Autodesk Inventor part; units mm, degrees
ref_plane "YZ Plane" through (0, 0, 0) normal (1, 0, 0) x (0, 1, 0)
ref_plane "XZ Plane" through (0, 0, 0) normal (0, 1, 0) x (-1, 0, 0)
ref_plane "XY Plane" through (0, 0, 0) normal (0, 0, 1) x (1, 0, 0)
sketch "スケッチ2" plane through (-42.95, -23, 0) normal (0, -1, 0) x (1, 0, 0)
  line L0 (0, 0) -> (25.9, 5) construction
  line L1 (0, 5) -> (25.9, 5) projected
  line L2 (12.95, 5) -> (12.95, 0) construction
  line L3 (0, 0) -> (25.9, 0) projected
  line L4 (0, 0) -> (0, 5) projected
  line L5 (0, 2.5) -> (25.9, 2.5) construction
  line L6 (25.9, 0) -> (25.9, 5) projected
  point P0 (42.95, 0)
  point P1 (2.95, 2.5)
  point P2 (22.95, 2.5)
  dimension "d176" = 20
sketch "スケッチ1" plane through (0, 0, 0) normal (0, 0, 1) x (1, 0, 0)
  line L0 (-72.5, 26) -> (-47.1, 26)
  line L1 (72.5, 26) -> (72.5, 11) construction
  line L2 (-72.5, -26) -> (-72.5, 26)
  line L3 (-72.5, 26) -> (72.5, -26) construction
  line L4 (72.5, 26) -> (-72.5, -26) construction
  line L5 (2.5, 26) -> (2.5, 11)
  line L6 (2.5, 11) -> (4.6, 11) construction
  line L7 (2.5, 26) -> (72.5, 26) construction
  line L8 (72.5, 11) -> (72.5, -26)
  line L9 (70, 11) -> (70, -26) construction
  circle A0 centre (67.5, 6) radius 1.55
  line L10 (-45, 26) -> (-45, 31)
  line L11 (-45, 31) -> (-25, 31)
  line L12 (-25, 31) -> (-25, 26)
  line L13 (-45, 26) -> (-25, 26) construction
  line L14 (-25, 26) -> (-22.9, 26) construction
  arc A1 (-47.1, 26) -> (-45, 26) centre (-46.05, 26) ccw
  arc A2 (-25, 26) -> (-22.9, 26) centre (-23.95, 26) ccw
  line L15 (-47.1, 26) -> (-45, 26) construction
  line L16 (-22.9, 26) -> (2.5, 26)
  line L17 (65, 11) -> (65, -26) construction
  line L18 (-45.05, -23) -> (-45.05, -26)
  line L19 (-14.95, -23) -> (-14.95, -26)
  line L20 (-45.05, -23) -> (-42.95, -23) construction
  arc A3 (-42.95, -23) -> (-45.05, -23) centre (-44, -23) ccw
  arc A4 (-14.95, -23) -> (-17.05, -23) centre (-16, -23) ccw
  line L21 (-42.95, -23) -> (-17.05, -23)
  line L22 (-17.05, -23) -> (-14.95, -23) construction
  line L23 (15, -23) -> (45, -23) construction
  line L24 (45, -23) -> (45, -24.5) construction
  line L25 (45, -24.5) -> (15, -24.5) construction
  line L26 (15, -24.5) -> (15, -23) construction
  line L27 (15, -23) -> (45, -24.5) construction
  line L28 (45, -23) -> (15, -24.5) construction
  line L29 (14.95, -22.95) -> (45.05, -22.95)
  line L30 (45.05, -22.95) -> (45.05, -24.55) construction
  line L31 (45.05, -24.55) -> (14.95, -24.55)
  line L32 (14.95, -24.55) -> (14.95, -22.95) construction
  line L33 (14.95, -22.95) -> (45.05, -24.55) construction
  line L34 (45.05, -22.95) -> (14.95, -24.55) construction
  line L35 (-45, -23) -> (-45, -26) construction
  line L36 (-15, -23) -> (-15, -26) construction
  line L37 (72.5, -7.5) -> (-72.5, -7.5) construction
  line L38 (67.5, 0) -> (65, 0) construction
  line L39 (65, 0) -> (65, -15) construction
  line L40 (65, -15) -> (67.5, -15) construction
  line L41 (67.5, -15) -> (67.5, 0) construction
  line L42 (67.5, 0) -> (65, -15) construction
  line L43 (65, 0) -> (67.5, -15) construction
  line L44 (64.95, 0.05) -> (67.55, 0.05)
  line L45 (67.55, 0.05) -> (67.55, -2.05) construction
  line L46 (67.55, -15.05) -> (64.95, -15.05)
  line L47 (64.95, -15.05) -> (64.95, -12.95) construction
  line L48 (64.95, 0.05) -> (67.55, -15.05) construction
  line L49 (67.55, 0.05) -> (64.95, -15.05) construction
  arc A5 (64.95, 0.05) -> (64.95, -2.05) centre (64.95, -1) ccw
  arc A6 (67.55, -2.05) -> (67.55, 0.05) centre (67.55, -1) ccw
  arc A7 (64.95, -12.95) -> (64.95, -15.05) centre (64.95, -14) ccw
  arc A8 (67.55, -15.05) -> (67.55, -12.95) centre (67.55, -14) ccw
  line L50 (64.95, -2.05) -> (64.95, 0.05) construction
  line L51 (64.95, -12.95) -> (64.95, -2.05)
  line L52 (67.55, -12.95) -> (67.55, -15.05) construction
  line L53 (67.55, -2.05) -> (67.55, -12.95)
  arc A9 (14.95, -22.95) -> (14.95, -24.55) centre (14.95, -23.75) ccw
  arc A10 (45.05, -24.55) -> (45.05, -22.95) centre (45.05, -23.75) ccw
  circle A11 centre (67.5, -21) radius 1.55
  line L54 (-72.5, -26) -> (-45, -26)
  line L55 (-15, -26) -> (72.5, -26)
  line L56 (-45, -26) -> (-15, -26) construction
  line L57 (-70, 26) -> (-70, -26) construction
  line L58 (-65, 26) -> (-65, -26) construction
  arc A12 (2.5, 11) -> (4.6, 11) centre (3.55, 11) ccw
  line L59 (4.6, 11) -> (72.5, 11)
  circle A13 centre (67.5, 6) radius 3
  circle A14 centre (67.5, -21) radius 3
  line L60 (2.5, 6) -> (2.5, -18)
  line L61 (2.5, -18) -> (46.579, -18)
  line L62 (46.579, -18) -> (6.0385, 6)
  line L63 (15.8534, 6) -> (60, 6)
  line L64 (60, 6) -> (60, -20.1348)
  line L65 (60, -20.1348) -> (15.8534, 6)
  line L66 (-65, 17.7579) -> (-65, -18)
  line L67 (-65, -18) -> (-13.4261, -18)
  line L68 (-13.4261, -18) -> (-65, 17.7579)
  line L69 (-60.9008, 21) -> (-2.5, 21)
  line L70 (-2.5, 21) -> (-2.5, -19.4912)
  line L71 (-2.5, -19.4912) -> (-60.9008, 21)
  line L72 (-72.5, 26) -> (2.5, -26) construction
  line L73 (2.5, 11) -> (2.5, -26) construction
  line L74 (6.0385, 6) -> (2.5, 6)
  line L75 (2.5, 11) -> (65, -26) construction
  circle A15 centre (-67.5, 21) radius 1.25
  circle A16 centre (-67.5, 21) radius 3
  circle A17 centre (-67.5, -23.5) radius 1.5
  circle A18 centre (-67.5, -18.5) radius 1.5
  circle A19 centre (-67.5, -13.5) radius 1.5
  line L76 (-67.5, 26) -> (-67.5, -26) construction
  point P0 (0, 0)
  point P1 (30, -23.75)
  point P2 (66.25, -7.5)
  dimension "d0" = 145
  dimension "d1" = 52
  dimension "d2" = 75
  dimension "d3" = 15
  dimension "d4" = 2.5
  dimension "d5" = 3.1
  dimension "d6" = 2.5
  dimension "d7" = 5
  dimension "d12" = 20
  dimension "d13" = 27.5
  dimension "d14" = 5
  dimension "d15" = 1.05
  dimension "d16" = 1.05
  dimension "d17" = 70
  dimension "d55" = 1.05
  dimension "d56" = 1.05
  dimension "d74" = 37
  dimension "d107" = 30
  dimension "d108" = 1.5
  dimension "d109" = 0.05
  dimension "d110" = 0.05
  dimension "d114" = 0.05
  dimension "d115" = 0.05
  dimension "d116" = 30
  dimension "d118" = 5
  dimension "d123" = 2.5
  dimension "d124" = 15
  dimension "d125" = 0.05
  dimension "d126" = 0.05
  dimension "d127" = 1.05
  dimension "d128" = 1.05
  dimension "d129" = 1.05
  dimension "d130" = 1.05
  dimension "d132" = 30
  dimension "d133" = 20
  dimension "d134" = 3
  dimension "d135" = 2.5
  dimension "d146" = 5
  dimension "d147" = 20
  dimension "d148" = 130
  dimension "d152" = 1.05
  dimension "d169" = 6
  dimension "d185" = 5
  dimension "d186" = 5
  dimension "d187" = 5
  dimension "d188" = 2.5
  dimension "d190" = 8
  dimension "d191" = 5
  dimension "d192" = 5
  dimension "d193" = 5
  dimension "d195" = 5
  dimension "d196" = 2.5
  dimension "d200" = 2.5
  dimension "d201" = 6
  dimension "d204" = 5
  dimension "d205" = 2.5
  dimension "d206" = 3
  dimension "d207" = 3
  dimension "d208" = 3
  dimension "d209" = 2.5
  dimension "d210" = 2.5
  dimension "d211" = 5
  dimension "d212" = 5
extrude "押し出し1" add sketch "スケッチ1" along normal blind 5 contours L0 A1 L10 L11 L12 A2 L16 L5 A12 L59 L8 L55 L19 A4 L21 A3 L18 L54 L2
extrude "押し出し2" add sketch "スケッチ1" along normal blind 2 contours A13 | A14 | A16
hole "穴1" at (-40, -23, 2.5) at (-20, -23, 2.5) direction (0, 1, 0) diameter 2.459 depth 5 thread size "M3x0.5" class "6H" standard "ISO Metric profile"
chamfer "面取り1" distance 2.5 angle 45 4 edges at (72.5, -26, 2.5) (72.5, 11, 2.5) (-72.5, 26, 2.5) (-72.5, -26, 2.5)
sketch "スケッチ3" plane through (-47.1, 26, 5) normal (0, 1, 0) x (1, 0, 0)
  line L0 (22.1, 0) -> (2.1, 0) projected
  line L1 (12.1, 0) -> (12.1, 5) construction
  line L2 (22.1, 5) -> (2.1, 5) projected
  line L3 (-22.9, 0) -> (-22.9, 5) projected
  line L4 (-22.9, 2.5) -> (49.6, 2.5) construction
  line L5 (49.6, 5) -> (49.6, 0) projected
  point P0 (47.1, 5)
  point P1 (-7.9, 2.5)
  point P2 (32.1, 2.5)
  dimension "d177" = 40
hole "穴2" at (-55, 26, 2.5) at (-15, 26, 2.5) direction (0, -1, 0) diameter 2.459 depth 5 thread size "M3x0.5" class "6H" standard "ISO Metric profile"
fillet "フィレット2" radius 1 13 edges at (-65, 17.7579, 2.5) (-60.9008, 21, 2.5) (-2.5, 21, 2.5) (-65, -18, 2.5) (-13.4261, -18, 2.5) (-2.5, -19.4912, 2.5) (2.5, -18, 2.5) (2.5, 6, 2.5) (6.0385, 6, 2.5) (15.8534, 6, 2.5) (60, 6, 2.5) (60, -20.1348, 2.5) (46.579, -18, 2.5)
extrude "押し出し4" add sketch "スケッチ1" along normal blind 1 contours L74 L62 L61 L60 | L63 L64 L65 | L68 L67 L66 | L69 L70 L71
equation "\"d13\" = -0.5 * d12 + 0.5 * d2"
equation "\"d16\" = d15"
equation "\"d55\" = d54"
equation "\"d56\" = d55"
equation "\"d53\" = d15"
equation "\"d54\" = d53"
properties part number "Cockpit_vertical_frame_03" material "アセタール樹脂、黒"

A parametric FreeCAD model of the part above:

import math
import FreeCAD as App
import Part
import Sketcher

V = App.Vector


def edges_at(feature, points):
    """Names of the edges that pass closest to the given points."""
    edges = feature.Shape.Edges
    near = lambda p: min(range(len(edges)), key=lambda i: edges[i].distToShape(Part.Vertex(*p))[0])
    return sorted({f"Edge{near(p) + 1}" for p in points})

doc = App.newDocument("Part")
params = doc.addObject("Spreadsheet::Sheet", "Params")
for row, (alias, value) in enumerate([
    ("sketch1_diameter", "3 mm"),
    ("sketch1_diameter2", "6 mm"),
    ("sketch1_width", "20 mm"),
    ("sketch1_height", "52 mm"),
    ("sketch1_height2", "3 mm"),
    ("pad1_length", "5 mm"),
    ("sketch2_diameter", "6 mm"),
    ("sketch2_diameter2", "3.1 mm"),
    ("sketch2_diameter3", "2.5 mm"),
    ("pad2_length", "2 mm"),
    ("hole_diameter", "2.459 mm"),
    ("hole_depth", "5 mm"),
    ("chamfer_size", "2.5 mm"),
    ("hole2_diameter", "2.459 mm"),
    ("hole2_depth", "5 mm"),
    ("fillet_radius", "1 mm"),
    ("sketch5_height", "24 mm"),
    ("pad3_length", "1 mm"),
], start=1):
    params.set(f"A{row}", alias)
    params.set(f"B{row}", "=" + value)
    params.setAlias(f"B{row}", alias)

body = doc.addObject("PartDesign::Body", "Body")

sketch1 = body.newObject("Sketcher::SketchObject", "Sketch")
sketch1.AttachmentSupport = (doc.getObject("XY_Plane"), [""])
sketch1.MapMode = "FlatFace"
sketch1.addGeometry([
    Part.LineSegment(V(-47.1, 26, 0), V(-72.5, 26, 0)),
    Part.LineSegment(V(-72.5, 26, 0), V(-72.5, -26, 0)),
    Part.LineSegment(V(-72.5, -26, 0), V(-45.05, -26, 0)),
    Part.LineSegment(V(-45.05, -26, 0), V(-45.05, -23, 0)),
    Part.ArcOfCircle(Part.Circle(V(-44, -23, 0), V(0, 0, 1), 1.05), math.radians(0), math.radians(180)),
    Part.LineSegment(V(-42.95, -23, 0), V(-17.05, -23, 0)),
    Part.ArcOfCircle(Part.Circle(V(-16, -23, 0), V(0, 0, 1), 1.05), math.radians(0), math.radians(180)),
    Part.LineSegment(V(-14.95, -23, 0), V(-14.95, -26, 0)),
    Part.LineSegment(V(-14.95, -26, 0), V(72.5, -26, 0)),
    Part.LineSegment(V(72.5, -26, 0), V(72.5, 11, 0)),
    Part.LineSegment(V(72.5, 11, 0), V(4.6, 11, 0)),
    Part.ArcOfCircle(Part.Circle(V(3.55, 11, 0), V(0, 0, 1), 1.05), math.radians(180), math.radians(360)),
    Part.LineSegment(V(2.5, 11, 0), V(2.5, 26, 0)),
    Part.LineSegment(V(2.5, 26, 0), V(-22.9, 26, 0)),
    Part.ArcOfCircle(Part.Circle(V(-23.95, 26, 0), V(0, 0, 1), 1.05), math.radians(180), math.radians(360)),
    Part.LineSegment(V(-25, 26, 0), V(-25, 31, 0)),
    Part.LineSegment(V(-25, 31, 0), V(-45, 31, 0)),
    Part.LineSegment(V(-45, 31, 0), V(-45, 26, 0)),
    Part.ArcOfCircle(Part.Circle(V(-46.05, 26, 0), V(0, 0, 1), 1.05), math.radians(180), math.radians(360)),
    Part.Circle(V(-67.5, -23.5, 0), V(0, 0, 1), 1.5),
    Part.Circle(V(-67.5, -18.5, 0), V(0, 0, 1), 1.5),
    Part.Circle(V(-67.5, -13.5, 0), V(0, 0, 1), 1.5),
    Part.LineSegment(V(-65, -18, 0), V(-65, 17.7579, 0)),
    Part.LineSegment(V(-65, 17.7579, 0), V(-13.4261, -18, 0)),
    Part.LineSegment(V(-13.4261, -18, 0), V(-65, -18, 0)),
    Part.LineSegment(V(-2.5, -19.4912, 0), V(-60.9008, 21, 0)),
    Part.LineSegment(V(-60.9008, 21, 0), V(-2.5, 21, 0)),
    Part.LineSegment(V(-2.5, 21, 0), V(-2.5, -19.4912, 0)),
    Part.ArcOfCircle(Part.Circle(V(14.95, -23.75, 0), V(0, 0, 1), 0.8), math.radians(90), math.radians(270)),
    Part.LineSegment(V(14.95, -22.95, 0), V(45.05, -22.95, 0)),
    Part.ArcOfCircle(Part.Circle(V(45.05, -23.75, 0), V(0, 0, 1), 0.8), math.radians(-90), math.radians(90)),
    Part.LineSegment(V(45.05, -24.55, 0), V(14.95, -24.55, 0)),
    Part.Circle(V(67.5, -21, 0), V(0, 0, 1), 3),
    Part.LineSegment(V(2.5, -18, 0), V(2.5, 6, 0)),
    Part.LineSegment(V(2.5, 6, 0), V(6.0385, 6, 0)),
    Part.LineSegment(V(6.0385, 6, 0), V(46.579, -18, 0)),
    Part.LineSegment(V(46.579, -18, 0), V(2.5, -18, 0)),
    Part.LineSegment(V(60, -20.1348, 0), V(15.8534, 6, 0)),
    Part.LineSegment(V(15.8534, 6, 0), V(60, 6, 0)),
    Part.LineSegment(V(60, 6, 0), V(60, -20.1348, 0)),
    Part.ArcOfCircle(Part.Circle(V(64.95, -1, 0), V(0, 0, 1), 1.05), math.radians(90), math.radians(270)),
    Part.LineSegment(V(64.95, 0.05, 0), V(67.55, 0.05, 0)),
    Part.ArcOfCircle(Part.Circle(V(67.55, -1, 0), V(0, 0, 1), 1.05), math.radians(-90), math.radians(90)),
    Part.LineSegment(V(67.55, -2.05, 0), V(67.55, -12.95, 0)),
    Part.ArcOfCircle(Part.Circle(V(67.55, -14, 0), V(0, 0, 1), 1.05), math.radians(-90), math.radians(90)),
    Part.LineSegment(V(67.55, -15.05, 0), V(64.95, -15.05, 0)),
    Part.ArcOfCircle(Part.Circle(V(64.95, -14, 0), V(0, 0, 1), 1.05), math.radians(90), math.radians(270)),
    Part.LineSegment(V(64.95, -12.95, 0), V(64.95, -2.05, 0)),
    Part.Circle(V(-67.5, 21, 0), V(0, 0, 1), 3),
    Part.Circle(V(67.5, 6, 0), V(0, 0, 1), 3),
], False)
sketch1.addConstraint([
    Sketcher.Constraint("Coincident", 0, 2, 1, 1),
    Sketcher.Constraint("Coincident", 1, 2, 2, 1),
    Sketcher.Constraint("Coincident", 2, 2, 3, 1),
    Sketcher.Constraint("Tangent", 3, 2, 4, 2),
    Sketcher.Constraint("Coincident", 4, 1, 5, 1),
    Sketcher.Constraint("Coincident", 5, 2, 6, 2),
    Sketcher.Constraint("Tangent", 6, 1, 7, 1),
    Sketcher.Constraint("Coincident", 7, 2, 8, 1),
    Sketcher.Constraint("Coincident", 8, 2, 9, 1),
    Sketcher.Constraint("Coincident", 9, 2, 10, 1),
    Sketcher.Constraint("Coincident", 10, 2, 11, 2),
    Sketcher.Constraint("Tangent", 11, 1, 12, 1),
    Sketcher.Constraint("Coincident", 12, 2, 13, 1),
    Sketcher.Constraint("Coincident", 13, 2, 14, 2),
    Sketcher.Constraint("Tangent", 14, 1, 15, 1),
    Sketcher.Constraint("Coincident", 15, 2, 16, 1),
    Sketcher.Constraint("Coincident", 16, 2, 17, 1),
    Sketcher.Constraint("Tangent", 17, 2, 18, 2),
    Sketcher.Constraint("Coincident", 18, 1, 0, 1),
    Sketcher.Constraint("Coincident", 22, 2, 23, 1),
    Sketcher.Constraint("Coincident", 23, 2, 24, 1),
    Sketcher.Constraint("Coincident", 24, 2, 22, 1),
    Sketcher.Constraint("Coincident", 25, 2, 26, 1),
    Sketcher.Constraint("Coincident", 26, 2, 27, 1),
    Sketcher.Constraint("Coincident", 27, 2, 25, 1),
    Sketcher.Constraint("Tangent", 28, 1, 29, 1),
    Sketcher.Constraint("Tangent", 29, 2, 30, 2),
    Sketcher.Constraint("Tangent", 30, 1, 31, 1),
    Sketcher.Constraint("Tangent", 31, 2, 28, 2),
    Sketcher.Constraint("Coincident", 33, 2, 34, 1),
    Sketcher.Constraint("Coincident", 34, 2, 35, 1),
    Sketcher.Constraint("Coincident", 35, 2, 36, 1),
    Sketcher.Constraint("Coincident", 36, 2, 33, 1),
    Sketcher.Constraint("Coincident", 37, 2, 38, 1),
    Sketcher.Constraint("Coincident", 38, 2, 39, 1),
    Sketcher.Constraint("Coincident", 39, 2, 37, 1),
    Sketcher.Constraint("Tangent", 40, 1, 41, 1),
    Sketcher.Constraint("Tangent", 41, 2, 42, 2),
    Sketcher.Constraint("Coincident", 42, 1, 43, 1),
    Sketcher.Constraint("Coincident", 43, 2, 44, 2),
    Sketcher.Constraint("Tangent", 44, 1, 45, 1),
    Sketcher.Constraint("Tangent", 45, 2, 46, 2),
    Sketcher.Constraint("Coincident", 46, 1, 47, 1),
    Sketcher.Constraint("Coincident", 47, 2, 40, 2),
    Sketcher.Constraint("Horizontal", 0),
    Sketcher.Constraint("Vertical", 1),
    Sketcher.Constraint("Horizontal", 2),
    Sketcher.Constraint("Vertical", 3),
    Sketcher.Constraint("Horizontal", 5),
    Sketcher.Constraint("Vertical", 7),
    Sketcher.Constraint("Horizontal", 8),
    Sketcher.Constraint("Vertical", 9),
    Sketcher.Constraint("Horizontal", 10),
    Sketcher.Constraint("Vertical", 12),
    Sketcher.Constraint("Horizontal", 13),
    Sketcher.Constraint("Vertical", 15),
    Sketcher.Constraint("Horizontal", 16),
    Sketcher.Constraint("Vertical", 17),
    Sketcher.Constraint("Vertical", 22),
    Sketcher.Constraint("Horizontal", 24),
    Sketcher.Constraint("Horizontal", 26),
    Sketcher.Constraint("Vertical", 27),
    Sketcher.Constraint("Horizontal", 29),
    Sketcher.Constraint("Horizontal", 31),
    Sketcher.Constraint("Vertical", 33),
    Sketcher.Constraint("Horizontal", 34),
    Sketcher.Constraint("Horizontal", 36),
    Sketcher.Constraint("Horizontal", 38),
    Sketcher.Constraint("Vertical", 39),
    Sketcher.Constraint("Horizontal", 41),
    Sketcher.Constraint("Vertical", 43),
    Sketcher.Constraint("Horizontal", 45),
    Sketcher.Constraint("Vertical", 47),
    Sketcher.Constraint("Equal", 4, 6),
    Sketcher.Constraint("Equal", 6, 11),
    Sketcher.Constraint("Equal", 11, 14),
    Sketcher.Constraint("Equal", 14, 18),
    Sketcher.Constraint("Equal", 19, 20),
    Sketcher.Constraint("Equal", 20, 21),
    Sketcher.Constraint("Equal", 18, 40),
    Sketcher.Constraint("Equal", 40, 42),
    Sketcher.Constraint("Equal", 42, 44),
    Sketcher.Constraint("Equal", 44, 46),
    Sketcher.Constraint("Equal", 32, 48),
    Sketcher.Constraint("Equal", 48, 49),
    Sketcher.Constraint("Symmetric", 32, 3, 48, 3, -1, 1),
    Sketcher.Constraint("Symmetric", 0, 2, 8, 2, -1, 1),
    Sketcher.Constraint("Parallel", 23, 25),
    Sketcher.Constraint("Parallel", 35, 37),
    Sketcher.Constraint("Horizontal", 4, 3, 6, 3),
    Sketcher.Constraint("Horizontal", 14, 3, 18, 3),
    Sketcher.Constraint("Horizontal", 18, 3, 0, 2),
    Sketcher.Constraint("Horizontal", 3, 2, 4, 1),
    Sketcher.Constraint("Horizontal", 2, 2, 7, 2),
    Sketcher.Constraint("Horizontal", 11, 3, 9, 2),
    Sketcher.Constraint("Horizontal", 0, 2, 12, 2),
    Sketcher.Constraint("Horizontal", 48, 3, 25, 2),
    Sketcher.Constraint("Horizontal", 49, 3, 33, 2),
    Sketcher.Constraint("Horizontal", 24, 2, 35, 2),
    Sketcher.Constraint("Horizontal", 34, 2, 37, 2),
    Sketcher.Constraint("Vertical", 19, 3, 20, 3),
    Sketcher.Constraint("Vertical", 20, 3, 21, 3),
    Sketcher.Constraint("Vertical", 42, 3, 44, 3),
    Sketcher.Constraint("Vertical", 40, 3, 46, 3),
    Sketcher.Constraint("Vertical", 21, 3, 48, 3),
    Sketcher.Constraint("Vertical", 32, 3, 49, 3),
    Sketcher.Constraint("Vertical", 12, 2, 33, 2),
    Sketcher.Constraint("Vertical", 41, 2, 42, 1),
    Sketcher.Constraint("Vertical", 45, 2, 46, 1),
    Sketcher.Constraint("Equal", 0, 13),
    Sketcher.Constraint("Diameter", 19, 3.0),
    Sketcher.Constraint("Diameter", 32, 6.0),
    Sketcher.Constraint("DistanceX", 16, 2, 16, 1, 20.0),
    Sketcher.Constraint("DistanceY", 1, 2, 1, 1, 52.0),
    Sketcher.Constraint("DistanceY", 3, 1, 3, 2, 3.0),
    Sketcher.Constraint("DistanceY", 9, 1, 9, 2, 37.0),
    Sketcher.Constraint("DistanceY", 15, 1, 15, 2, 5.0),
    Sketcher.Constraint("Radius", 4, 1.05),
    Sketcher.Constraint("DistanceY", -1, 1, 49, 3, 6.0),
    Sketcher.Constraint("DistanceX", -1, 1, 11, 1, 2.5),
    Sketcher.Constraint("DistanceX", 26, 2, -1, 1, 2.5),
    Sketcher.Constraint("Radius", 28, 0.8),
    Sketcher.Constraint("DistanceY", 33, 1, 33, 2, 24.0),
    Sketcher.Constraint("DistanceY", -1, 1, 40, 1, 0.05),
    Sketcher.Constraint("DistanceX", 0, 2, 0, 1, 25.4),
    Sketcher.Constraint("DistanceX", 5, 1, 5, 2, 25.9),
    Sketcher.Constraint("DistanceX", 29, 1, 29, 2, 30.1),
    Sketcher.Constraint("DistanceX", 41, 1, 41, 2, 2.6),
    Sketcher.Constraint("DistanceY", 43, 2, 43, 1, 10.9),
    Sketcher.Constraint("DistanceX", 4, 3, -1, 1, 44.0),
    Sketcher.Constraint("DistanceY", 32, 3, -1, 1, 21.0),
    Sketcher.Constraint("DistanceX", 22, 2, -1, 1, 65.0),
    Sketcher.Constraint("DistanceX", -1, 1, 38, 2, 60.0),
    Sketcher.Constraint("DistanceX", 19, 3, -1, 1, 67.5),
    Sketcher.Constraint("DistanceY", 19, 3, -1, 1, 23.5),
    Sketcher.Constraint("DistanceY", 20, 3, -1, 1, 18.5),
    Sketcher.Constraint("DistanceY", 21, 3, -1, 1, 13.5),
    Sketcher.Constraint("DistanceX", 24, 2, 24, 1, 51.574),
    Sketcher.Constraint("DistanceX", 36, 2, 36, 1, 44.079),
    Sketcher.Constraint("DistanceY", 22, 1, 22, 2, 35.758),
    Sketcher.Constraint("DistanceX", -1, 1, 28, 3, 14.95),
    Sketcher.Constraint("DistanceY", 28, 3, -1, 1, 23.75),
    Sketcher.Constraint("DistanceX", -1, 1, 40, 3, 64.95),
    Sketcher.Constraint("Distance", 35, 47.112),
    Sketcher.Constraint("DistanceX", 26, 1, 26, 2, 58.4008),
    Sketcher.Constraint("DistanceX", 38, 1, 38, 2, 44.1466),
])
sketch1.setExpression("Constraints[110]", "Params.sketch1_diameter")
sketch1.setExpression("Constraints[111]", "Params.sketch1_diameter2")
sketch1.setExpression("Constraints[112]", "Params.sketch1_width")
sketch1.setExpression("Constraints[113]", "Params.sketch1_height")
sketch1.setExpression("Constraints[114]", "Params.sketch1_height2")
pad1 = body.newObject("PartDesign::Pad", "Pad")
pad1.Profile = sketch1
pad1.setExpression("Length", "Params.pad1_length")

sketch2 = body.newObject("Sketcher::SketchObject", "Sketch001")
sketch2.AttachmentSupport = (doc.getObject("XY_Plane"), [""])
sketch2.MapMode = "FlatFace"
sketch2.addGeometry([
    Part.Circle(V(67.5, 6, 0), V(0, 0, 1), 3),
    Part.Circle(V(67.5, 6, 0), V(0, 0, 1), 1.55),
    Part.Circle(V(67.5, -21, 0), V(0, 0, 1), 3),
    Part.Circle(V(67.5, -21, 0), V(0, 0, 1), 1.55),
    Part.Circle(V(-67.5, 21, 0), V(0, 0, 1), 3),
    Part.Circle(V(-67.5, 21, 0), V(0, 0, 1), 1.25),
], False)
sketch2.addConstraint([
    Sketcher.Constraint("Coincident", 1, 3, 0, 3),
    Sketcher.Constraint("Coincident", 3, 3, 2, 3),
    Sketcher.Constraint("Coincident", 5, 3, 4, 3),
    Sketcher.Constraint("Equal", 0, 2),
    Sketcher.Constraint("Equal", 1, 3),
    Sketcher.Constraint("Equal", 2, 4),
    Sketcher.Constraint("Symmetric", 2, 3, 4, 3, -1, 1),
    Sketcher.Constraint("Vertical", 1, 3, 2, 3),
    Sketcher.Constraint("Diameter", 0, 6.0),
    Sketcher.Constraint("Diameter", 1, 3.1),
    Sketcher.Constraint("Diameter", 5, 2.5),
    Sketcher.Constraint("DistanceY", -1, 1, 0, 3, 6.0),
    Sketcher.Constraint("DistanceY", 0, 3, 4, 3, 15.0),
    Sketcher.Constraint("DistanceX", 4, 3, 0, 3, 135.0),
])
sketch2.setExpression("Constraints[8]", "Params.sketch2_diameter")
sketch2.setExpression("Constraints[9]", "Params.sketch2_diameter2")
sketch2.setExpression("Constraints[10]", "Params.sketch2_diameter3")
pad2 = body.newObject("PartDesign::Pad", "Pad001")
pad2.Profile = sketch2
pad2.setExpression("Length", "Params.pad2_length")

sketch3 = body.newObject("Sketcher::SketchObject", "Sketch002")
sketch3.AttachmentSupport = (doc.getObject("XZ_Plane"), [""])
sketch3.MapMode = "FlatFace"
sketch3.AttachmentOffset = App.Placement(V(0, 0, 23), App.Rotation())
sketch3.addGeometry([
    Part.Circle(V(-40, 2.5, 0), V(0, 0, 1), 1.2295),
    Part.Circle(V(-20, 2.5, 0), V(0, 0, 1), 1.2295),
], False)
sketch3.addConstraint([
    Sketcher.Constraint("Equal", 0, 1),
    Sketcher.Constraint("Horizontal", 0, 3, 1, 3),
    Sketcher.Constraint("Diameter", 0, 2.459),
    Sketcher.Constraint("DistanceX", 0, 3, -1, 1, 40.0),
    Sketcher.Constraint("DistanceX", 1, 3, -1, 1, 20.0),
    Sketcher.Constraint("DistanceY", -1, 1, 0, 3, 2.5),
])
doc.recompute()
hole = body.newObject("PartDesign::Hole", "Hole")
hole.Profile = sketch3
hole.ThreadType = "None"
hole.setExpression("Diameter", "Params.hole_diameter")
hole.DepthType = "Dimension"
hole.setExpression("Depth", "Params.hole_depth")
hole.DrillPoint = "Flat"
doc.recompute()

chamfer = body.newObject("PartDesign::Chamfer", "Chamfer")
chamfer.Base = (hole, edges_at(hole, [
    (72.5, -26, 2.5),
    (72.5, 11, 2.5),
    (-72.5, 26, 2.5),
    (-72.5, -26, 2.5),
]))
chamfer.setExpression("Size", "Params.chamfer_size")

sketch4 = body.newObject("Sketcher::SketchObject", "Sketch003")
sketch4.AttachmentSupport = (doc.getObject("XZ_Plane"), [""])
sketch4.MapMode = "FlatFace"
sketch4.AttachmentOffset = App.Placement(V(0, 0, -26), App.Rotation())
sketch4.addGeometry([
    Part.Circle(V(-55, 2.5, 0), V(0, 0, 1), 1.2295),
    Part.Circle(V(-15, 2.5, 0), V(0, 0, 1), 1.2295),
], False)
sketch4.addConstraint([
    Sketcher.Constraint("Equal", 0, 1),
    Sketcher.Constraint("Horizontal", 0, 3, 1, 3),
    Sketcher.Constraint("Diameter", 0, 2.459),
    Sketcher.Constraint("DistanceX", 0, 3, -1, 1, 55.0),
    Sketcher.Constraint("DistanceX", 1, 3, -1, 1, 15.0),
    Sketcher.Constraint("DistanceY", -1, 1, 0, 3, 2.5),
])
doc.recompute()
hole2 = body.newObject("PartDesign::Hole", "Hole001")
hole2.Profile = sketch4
hole2.ThreadType = "None"
hole2.setExpression("Diameter", "Params.hole2_diameter")
hole2.DepthType = "Dimension"
hole2.setExpression("Depth", "Params.hole2_depth")
hole2.DrillPoint = "Flat"
hole2.Reversed = True
doc.recompute()

fillet = body.newObject("PartDesign::Fillet", "Fillet")
fillet.Base = (hole2, edges_at(hole2, [
    (-65, 17.758, 2.5),
    (-60.901, 21, 2.5),
    (-2.5, 21, 2.5),
    (-65, -18, 2.5),
    (-13.426, -18, 2.5),
    (-2.5, -19.491, 2.5),
    (2.5, -18, 2.5),
    (2.5, 6, 2.5),
    (6.038, 6, 2.5),
    (15.853, 6, 2.5),
    (60, 6, 2.5),
    (60, -20.135, 2.5),
    (46.579, -18, 2.5),
]))
fillet.setExpression("Radius", "Params.fillet_radius")

sketch5 = body.newObject("Sketcher::SketchObject", "Sketch004")
sketch5.AttachmentSupport = (doc.getObject("XY_Plane"), [""])
sketch5.MapMode = "FlatFace"
sketch5.addGeometry([
    Part.LineSegment(V(6.0385, 6, 0), V(2.5, 6, 0)),
    Part.LineSegment(V(2.5, 6, 0), V(2.5, -18, 0)),
    Part.LineSegment(V(2.5, -18, 0), V(46.579, -18, 0)),
    Part.LineSegment(V(46.579, -18, 0), V(6.0385, 6, 0)),
    Part.LineSegment(V(60, 6, 0), V(15.8534, 6, 0)),
    Part.LineSegment(V(15.8534, 6, 0), V(60, -20.1348, 0)),
    Part.LineSegment(V(60, -20.1348, 0), V(60, 6, 0)),
    Part.LineSegment(V(-13.4261, -18, 0), V(-65, 17.7579, 0)),
    Part.LineSegment(V(-65, 17.7579, 0), V(-65, -18, 0)),
    Part.LineSegment(V(-65, -18, 0), V(-13.4261, -18, 0)),
    Part.LineSegment(V(-2.5, 21, 0), V(-60.9008, 21, 0)),
    Part.LineSegment(V(-60.9008, 21, 0), V(-2.5, -19.4912, 0)),
    Part.LineSegment(V(-2.5, -19.4912, 0), V(-2.5, 21, 0)),
], False)
sketch5.addConstraint([
    Sketcher.Constraint("Coincident", 0, 2, 1, 1),
    Sketcher.Constraint("Coincident", 1, 2, 2, 1),
    Sketcher.Constraint("Coincident", 2, 2, 3, 1),
    Sketcher.Constraint("Coincident", 3, 2, 0, 1),
    Sketcher.Constraint("Coincident", 4, 2, 5, 1),
    Sketcher.Constraint("Coincident", 5, 2, 6, 1),
    Sketcher.Constraint("Coincident", 6, 2, 4, 1),
    Sketcher.Constraint("Coincident", 7, 2, 8, 1),
    Sketcher.Constraint("Coincident", 8, 2, 9, 1),
    Sketcher.Constraint("Coincident", 9, 2, 7, 1),
    Sketcher.Constraint("Coincident", 10, 2, 11, 1),
    Sketcher.Constraint("Coincident", 11, 2, 12, 1),
    Sketcher.Constraint("Coincident", 12, 2, 10, 1),
    Sketcher.Constraint("Horizontal", 0),
    Sketcher.Constraint("Vertical", 1),
    Sketcher.Constraint("Horizontal", 2),
    Sketcher.Constraint("Horizontal", 4),
    Sketcher.Constraint("Vertical", 6),
    Sketcher.Constraint("Vertical", 8),
    Sketcher.Constraint("Horizontal", 9),
    Sketcher.Constraint("Horizontal", 10),
    Sketcher.Constraint("Vertical", 12),
    Sketcher.Constraint("Parallel", 3, 5),
    Sketcher.Constraint("Parallel", 7, 11),
    Sketcher.Constraint("Horizontal", 3, 2, 4, 2),
    Sketcher.Constraint("Horizontal", 2, 2, 8, 2),
    Sketcher.Constraint("DistanceY", -1, 1, 0, 2, 6.0),
    Sketcher.Constraint("DistanceY", 0, 2, 10, 2, 15.0),
    Sketcher.Constraint("DistanceX", 11, 2, 1, 2, 5.0),
    Sketcher.Constraint("DistanceX", -1, 1, 0, 2, 2.5),
    Sketcher.Constraint("DistanceY", 1, 2, 1, 1, 24.0),
    Sketcher.Constraint("DistanceX", -1, 1, 5, 2, 60.0),
    Sketcher.Constraint("DistanceX", 7, 2, -1, 1, 65.0),
    Sketcher.Constraint("DistanceX", 2, 1, 2, 2, 44.079),
    Sketcher.Constraint("DistanceX", 9, 1, 9, 2, 51.574),
    Sketcher.Constraint("DistanceY", 8, 2, 8, 1, 35.758),
    Sketcher.Constraint("Distance", 3, 47.112),
    Sketcher.Constraint("DistanceX", 4, 2, 4, 1, 44.1466),
    Sketcher.Constraint("DistanceX", 10, 2, 10, 1, 58.4008),
])
sketch5.setExpression("Constraints[30]", "Params.sketch5_height")
pad3 = body.newObject("PartDesign::Pad", "Pad002")
pad3.Profile = sketch5
pad3.setExpression("Length", "Params.pad3_length")

doc.recompute()
